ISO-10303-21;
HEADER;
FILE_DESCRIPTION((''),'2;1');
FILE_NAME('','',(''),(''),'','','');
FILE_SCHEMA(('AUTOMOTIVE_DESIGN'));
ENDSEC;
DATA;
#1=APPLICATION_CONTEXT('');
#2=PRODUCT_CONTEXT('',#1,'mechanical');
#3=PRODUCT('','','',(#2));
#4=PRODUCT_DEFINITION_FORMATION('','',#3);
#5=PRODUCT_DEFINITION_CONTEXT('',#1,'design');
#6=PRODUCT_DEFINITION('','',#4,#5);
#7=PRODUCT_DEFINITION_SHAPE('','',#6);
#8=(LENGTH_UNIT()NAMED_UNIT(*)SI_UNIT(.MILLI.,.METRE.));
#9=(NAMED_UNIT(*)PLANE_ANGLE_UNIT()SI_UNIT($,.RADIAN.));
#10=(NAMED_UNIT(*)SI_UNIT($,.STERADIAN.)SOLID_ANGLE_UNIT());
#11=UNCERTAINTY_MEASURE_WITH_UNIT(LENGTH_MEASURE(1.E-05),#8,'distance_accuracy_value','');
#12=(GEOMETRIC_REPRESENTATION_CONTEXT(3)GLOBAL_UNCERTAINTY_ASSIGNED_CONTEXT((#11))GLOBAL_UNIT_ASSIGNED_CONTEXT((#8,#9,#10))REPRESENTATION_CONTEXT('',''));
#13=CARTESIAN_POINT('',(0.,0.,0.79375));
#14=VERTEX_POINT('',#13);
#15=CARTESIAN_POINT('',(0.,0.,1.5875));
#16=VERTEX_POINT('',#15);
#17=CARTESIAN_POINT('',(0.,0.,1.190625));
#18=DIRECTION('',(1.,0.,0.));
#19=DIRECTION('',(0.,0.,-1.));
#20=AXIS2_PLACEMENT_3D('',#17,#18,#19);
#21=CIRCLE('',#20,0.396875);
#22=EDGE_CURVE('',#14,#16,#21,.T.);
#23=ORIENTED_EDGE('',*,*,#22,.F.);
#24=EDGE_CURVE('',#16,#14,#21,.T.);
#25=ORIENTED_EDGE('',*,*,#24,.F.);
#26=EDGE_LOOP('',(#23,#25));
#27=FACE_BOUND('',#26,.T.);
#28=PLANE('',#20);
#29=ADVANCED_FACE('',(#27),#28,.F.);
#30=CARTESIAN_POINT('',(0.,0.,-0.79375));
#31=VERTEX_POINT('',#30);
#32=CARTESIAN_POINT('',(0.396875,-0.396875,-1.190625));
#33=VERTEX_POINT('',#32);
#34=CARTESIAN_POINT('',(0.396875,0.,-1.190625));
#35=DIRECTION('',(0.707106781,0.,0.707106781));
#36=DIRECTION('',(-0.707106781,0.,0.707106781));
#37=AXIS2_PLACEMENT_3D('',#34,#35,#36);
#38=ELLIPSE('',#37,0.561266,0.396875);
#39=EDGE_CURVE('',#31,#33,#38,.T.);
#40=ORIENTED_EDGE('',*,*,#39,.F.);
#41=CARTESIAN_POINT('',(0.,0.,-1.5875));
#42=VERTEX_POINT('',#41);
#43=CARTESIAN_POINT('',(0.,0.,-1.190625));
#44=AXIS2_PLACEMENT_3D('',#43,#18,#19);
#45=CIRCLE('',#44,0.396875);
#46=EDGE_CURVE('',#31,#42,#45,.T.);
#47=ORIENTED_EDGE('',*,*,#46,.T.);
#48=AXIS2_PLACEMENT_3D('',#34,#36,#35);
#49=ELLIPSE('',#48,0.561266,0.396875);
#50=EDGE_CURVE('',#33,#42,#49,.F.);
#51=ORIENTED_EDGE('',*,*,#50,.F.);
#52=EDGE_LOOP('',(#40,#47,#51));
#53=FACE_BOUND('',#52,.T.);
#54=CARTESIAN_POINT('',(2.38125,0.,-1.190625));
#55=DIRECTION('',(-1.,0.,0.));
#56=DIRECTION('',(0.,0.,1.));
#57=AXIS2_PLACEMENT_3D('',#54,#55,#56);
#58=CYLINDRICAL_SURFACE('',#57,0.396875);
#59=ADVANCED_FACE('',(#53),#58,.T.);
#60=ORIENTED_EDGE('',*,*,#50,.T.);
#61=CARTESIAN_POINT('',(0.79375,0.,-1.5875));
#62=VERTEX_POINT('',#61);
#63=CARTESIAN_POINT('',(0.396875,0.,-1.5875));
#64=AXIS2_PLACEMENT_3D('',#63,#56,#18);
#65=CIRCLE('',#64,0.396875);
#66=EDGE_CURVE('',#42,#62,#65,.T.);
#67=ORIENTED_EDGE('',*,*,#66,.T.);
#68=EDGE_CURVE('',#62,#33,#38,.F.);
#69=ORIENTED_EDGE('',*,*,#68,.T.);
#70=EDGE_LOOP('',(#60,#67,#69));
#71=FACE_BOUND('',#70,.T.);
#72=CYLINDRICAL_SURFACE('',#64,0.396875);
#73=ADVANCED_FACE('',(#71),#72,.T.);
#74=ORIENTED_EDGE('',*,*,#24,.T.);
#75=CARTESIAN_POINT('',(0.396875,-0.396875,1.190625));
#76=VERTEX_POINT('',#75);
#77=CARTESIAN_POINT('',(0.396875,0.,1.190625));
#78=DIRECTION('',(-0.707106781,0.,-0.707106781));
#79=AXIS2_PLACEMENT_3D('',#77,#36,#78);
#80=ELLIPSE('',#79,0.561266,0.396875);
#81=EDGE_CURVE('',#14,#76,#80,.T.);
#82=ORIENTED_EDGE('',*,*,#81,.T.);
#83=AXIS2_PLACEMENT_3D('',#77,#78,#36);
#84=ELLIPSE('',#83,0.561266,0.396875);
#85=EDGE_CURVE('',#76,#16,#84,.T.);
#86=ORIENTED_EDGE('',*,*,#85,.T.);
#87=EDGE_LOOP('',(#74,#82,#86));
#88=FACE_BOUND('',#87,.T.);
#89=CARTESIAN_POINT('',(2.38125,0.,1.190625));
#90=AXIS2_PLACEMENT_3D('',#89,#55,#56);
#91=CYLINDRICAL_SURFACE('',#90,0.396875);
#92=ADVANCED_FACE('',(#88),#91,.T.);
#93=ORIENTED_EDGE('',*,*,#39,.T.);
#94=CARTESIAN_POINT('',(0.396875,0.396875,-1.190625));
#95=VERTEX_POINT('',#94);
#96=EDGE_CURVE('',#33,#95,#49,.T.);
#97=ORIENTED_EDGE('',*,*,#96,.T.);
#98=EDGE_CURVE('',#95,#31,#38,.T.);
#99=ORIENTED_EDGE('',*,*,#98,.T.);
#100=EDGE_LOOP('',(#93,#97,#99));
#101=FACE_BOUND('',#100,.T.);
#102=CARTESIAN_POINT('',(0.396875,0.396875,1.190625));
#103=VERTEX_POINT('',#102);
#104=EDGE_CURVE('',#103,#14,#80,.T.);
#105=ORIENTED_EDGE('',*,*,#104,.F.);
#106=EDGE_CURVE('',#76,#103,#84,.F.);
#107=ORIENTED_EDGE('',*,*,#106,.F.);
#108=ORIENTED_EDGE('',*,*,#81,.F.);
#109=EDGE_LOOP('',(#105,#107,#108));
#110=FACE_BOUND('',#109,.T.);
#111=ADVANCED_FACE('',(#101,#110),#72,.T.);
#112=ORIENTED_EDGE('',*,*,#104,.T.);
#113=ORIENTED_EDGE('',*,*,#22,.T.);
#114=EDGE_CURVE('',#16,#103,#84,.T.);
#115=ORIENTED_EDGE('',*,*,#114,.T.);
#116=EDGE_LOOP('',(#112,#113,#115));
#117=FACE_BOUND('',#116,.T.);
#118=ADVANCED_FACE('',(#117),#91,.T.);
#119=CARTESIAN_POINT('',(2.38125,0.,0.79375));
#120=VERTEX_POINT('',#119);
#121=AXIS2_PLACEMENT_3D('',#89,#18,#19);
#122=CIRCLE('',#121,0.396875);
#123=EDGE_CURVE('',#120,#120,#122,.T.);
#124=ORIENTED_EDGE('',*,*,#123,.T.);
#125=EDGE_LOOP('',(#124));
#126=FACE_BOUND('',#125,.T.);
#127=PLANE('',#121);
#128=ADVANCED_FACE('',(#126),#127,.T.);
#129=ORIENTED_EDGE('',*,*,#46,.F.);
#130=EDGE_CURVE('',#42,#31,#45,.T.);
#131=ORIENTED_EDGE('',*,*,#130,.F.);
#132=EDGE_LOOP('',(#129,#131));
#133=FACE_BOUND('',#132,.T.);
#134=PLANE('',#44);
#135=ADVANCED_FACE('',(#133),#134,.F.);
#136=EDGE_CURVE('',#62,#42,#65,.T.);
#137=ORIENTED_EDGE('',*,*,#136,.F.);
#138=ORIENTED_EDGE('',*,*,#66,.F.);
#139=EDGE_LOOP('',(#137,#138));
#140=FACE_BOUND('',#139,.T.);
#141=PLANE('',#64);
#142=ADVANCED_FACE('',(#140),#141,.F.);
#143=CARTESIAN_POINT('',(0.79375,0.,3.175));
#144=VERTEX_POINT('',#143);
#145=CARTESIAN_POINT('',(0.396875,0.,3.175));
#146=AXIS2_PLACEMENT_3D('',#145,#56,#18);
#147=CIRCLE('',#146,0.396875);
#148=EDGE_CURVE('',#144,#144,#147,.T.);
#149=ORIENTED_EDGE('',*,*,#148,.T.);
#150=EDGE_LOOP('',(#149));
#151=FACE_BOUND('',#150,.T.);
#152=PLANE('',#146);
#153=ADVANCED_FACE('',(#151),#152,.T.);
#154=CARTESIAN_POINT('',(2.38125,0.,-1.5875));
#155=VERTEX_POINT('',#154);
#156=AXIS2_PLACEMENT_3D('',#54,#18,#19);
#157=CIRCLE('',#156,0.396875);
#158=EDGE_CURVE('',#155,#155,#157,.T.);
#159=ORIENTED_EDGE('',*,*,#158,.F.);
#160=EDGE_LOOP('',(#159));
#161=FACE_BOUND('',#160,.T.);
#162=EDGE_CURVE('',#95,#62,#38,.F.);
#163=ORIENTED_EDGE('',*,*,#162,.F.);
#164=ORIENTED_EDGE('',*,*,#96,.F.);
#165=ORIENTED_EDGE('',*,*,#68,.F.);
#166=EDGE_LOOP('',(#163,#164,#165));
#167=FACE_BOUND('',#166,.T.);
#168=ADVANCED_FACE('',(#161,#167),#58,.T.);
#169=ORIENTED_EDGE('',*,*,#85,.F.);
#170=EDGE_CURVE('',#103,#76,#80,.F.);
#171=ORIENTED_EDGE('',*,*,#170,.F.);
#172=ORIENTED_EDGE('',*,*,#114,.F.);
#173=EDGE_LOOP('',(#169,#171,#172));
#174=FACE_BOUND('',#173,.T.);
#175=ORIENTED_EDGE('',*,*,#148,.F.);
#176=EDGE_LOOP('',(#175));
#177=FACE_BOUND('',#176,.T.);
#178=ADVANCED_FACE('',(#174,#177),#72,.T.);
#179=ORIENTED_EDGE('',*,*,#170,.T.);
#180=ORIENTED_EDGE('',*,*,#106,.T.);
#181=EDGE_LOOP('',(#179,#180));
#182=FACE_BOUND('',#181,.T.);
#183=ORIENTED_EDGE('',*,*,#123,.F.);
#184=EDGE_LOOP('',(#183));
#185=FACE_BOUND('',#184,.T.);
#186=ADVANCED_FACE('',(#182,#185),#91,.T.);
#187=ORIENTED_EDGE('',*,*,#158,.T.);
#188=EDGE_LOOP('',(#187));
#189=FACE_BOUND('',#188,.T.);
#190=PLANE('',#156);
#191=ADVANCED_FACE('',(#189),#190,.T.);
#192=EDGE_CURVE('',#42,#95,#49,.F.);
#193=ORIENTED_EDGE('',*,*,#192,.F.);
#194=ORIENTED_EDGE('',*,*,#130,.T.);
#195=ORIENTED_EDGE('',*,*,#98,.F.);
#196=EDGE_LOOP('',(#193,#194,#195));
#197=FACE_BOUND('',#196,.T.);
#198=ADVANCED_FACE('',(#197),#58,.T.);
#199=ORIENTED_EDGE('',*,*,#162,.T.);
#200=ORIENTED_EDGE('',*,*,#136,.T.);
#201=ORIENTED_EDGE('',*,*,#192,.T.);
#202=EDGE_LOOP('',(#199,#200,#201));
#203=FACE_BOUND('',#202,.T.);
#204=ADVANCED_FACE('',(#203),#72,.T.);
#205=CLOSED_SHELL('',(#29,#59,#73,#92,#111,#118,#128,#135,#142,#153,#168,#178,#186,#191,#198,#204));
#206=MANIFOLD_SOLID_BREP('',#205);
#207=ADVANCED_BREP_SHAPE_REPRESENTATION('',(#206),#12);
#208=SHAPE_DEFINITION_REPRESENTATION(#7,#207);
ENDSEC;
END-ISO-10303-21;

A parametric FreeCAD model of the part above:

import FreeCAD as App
import Part
import Sketcher

V = App.Vector
Q = App.Units.Quantity

doc = App.newDocument("Part")
body = doc.addObject("PartDesign::Body", "Body")

# Sketch on YZ plane
sketch1 = doc.addObject("Sketcher::SketchObject", "Sketch")
body.addObject(sketch1)
sketch1.AttachmentSupport = (doc.YZ_Plane, [""])
sketch1.MapMode = "FlatFace"
sketch1.addGeometry(Part.Circle(V(0, 1.19, 0), V(0, 0, 1), 0.4), False)
sketch1.addConstraint([
    Sketcher.Constraint("PointOnObject", 0, 3, -2),
    Sketcher.Constraint("Diameter", 0, Q("0.03125 in")),
    Sketcher.Constraint("DistanceY", -1, 1, 0, 3, Q("0.046875 in")),
])
pad1 = doc.addObject("PartDesign::Pad", "Pad")
body.addObject(pad1)
pad1.Profile = sketch1
pad1.Length = Q("0.09375 in")
body2 = doc.addObject("PartDesign::Body", "Body001")

# Sketch on YZ plane
sketch2 = doc.addObject("Sketcher::SketchObject", "Sketch001")
body2.addObject(sketch2)
sketch2.AttachmentSupport = (doc.getObject("YZ_Plane001"), [""])
sketch2.MapMode = "FlatFace"
sketch2.addGeometry(Part.Circle(V(0, -1.19, 0), V(0, 0, 1), 0.4), False)
sketch2.addConstraint([
    Sketcher.Constraint("PointOnObject", 0, 3, -2),
    Sketcher.Constraint("Diameter", 0, Q("0.03125 in")),
    Sketcher.Constraint("DistanceY", 0, 3, -1, 1, Q("0.046875 in")),
])
pad2 = doc.addObject("PartDesign::Pad", "Pad001")
body2.addObject(pad2)
pad2.Profile = sketch2
pad2.Length = Q("0.09375 in")
body.AllowCompound = True
doc.recompute()

boolean = doc.addObject("PartDesign::Boolean", "Boolean")
body.addObject(boolean)
boolean.Type = "Fuse"
boolean.addObjects([body2])

# Sketch on XY plane
sketch3 = doc.addObject("Sketcher::SketchObject", "Sketch002")
body.addObject(sketch3)
sketch3.AttachmentSupport = (doc.XY_Plane, [""])
sketch3.MapMode = "FlatFace"
sketch3.addGeometry(Part.Circle(V(0.4, 0, 0), V(0, 0, 1), 0.4), False)
sketch3.addConstraint([
    Sketcher.Constraint("PointOnObject", 0, 3, -1),
    Sketcher.Constraint("Diameter", 0, Q("0.03125 in")),
    Sketcher.Constraint("DistanceX", -1, 1, 0, 3, Q("0.015625 in")),
])
pad3 = doc.addObject("PartDesign::Pad", "Pad002")
body.addObject(pad3)
pad3.Profile = sketch3
pad3.Type = "TwoLengths"
pad3.Length = Q("0.125 in")
pad3.Length2 = Q("0.0625 in")

doc.recompute()
